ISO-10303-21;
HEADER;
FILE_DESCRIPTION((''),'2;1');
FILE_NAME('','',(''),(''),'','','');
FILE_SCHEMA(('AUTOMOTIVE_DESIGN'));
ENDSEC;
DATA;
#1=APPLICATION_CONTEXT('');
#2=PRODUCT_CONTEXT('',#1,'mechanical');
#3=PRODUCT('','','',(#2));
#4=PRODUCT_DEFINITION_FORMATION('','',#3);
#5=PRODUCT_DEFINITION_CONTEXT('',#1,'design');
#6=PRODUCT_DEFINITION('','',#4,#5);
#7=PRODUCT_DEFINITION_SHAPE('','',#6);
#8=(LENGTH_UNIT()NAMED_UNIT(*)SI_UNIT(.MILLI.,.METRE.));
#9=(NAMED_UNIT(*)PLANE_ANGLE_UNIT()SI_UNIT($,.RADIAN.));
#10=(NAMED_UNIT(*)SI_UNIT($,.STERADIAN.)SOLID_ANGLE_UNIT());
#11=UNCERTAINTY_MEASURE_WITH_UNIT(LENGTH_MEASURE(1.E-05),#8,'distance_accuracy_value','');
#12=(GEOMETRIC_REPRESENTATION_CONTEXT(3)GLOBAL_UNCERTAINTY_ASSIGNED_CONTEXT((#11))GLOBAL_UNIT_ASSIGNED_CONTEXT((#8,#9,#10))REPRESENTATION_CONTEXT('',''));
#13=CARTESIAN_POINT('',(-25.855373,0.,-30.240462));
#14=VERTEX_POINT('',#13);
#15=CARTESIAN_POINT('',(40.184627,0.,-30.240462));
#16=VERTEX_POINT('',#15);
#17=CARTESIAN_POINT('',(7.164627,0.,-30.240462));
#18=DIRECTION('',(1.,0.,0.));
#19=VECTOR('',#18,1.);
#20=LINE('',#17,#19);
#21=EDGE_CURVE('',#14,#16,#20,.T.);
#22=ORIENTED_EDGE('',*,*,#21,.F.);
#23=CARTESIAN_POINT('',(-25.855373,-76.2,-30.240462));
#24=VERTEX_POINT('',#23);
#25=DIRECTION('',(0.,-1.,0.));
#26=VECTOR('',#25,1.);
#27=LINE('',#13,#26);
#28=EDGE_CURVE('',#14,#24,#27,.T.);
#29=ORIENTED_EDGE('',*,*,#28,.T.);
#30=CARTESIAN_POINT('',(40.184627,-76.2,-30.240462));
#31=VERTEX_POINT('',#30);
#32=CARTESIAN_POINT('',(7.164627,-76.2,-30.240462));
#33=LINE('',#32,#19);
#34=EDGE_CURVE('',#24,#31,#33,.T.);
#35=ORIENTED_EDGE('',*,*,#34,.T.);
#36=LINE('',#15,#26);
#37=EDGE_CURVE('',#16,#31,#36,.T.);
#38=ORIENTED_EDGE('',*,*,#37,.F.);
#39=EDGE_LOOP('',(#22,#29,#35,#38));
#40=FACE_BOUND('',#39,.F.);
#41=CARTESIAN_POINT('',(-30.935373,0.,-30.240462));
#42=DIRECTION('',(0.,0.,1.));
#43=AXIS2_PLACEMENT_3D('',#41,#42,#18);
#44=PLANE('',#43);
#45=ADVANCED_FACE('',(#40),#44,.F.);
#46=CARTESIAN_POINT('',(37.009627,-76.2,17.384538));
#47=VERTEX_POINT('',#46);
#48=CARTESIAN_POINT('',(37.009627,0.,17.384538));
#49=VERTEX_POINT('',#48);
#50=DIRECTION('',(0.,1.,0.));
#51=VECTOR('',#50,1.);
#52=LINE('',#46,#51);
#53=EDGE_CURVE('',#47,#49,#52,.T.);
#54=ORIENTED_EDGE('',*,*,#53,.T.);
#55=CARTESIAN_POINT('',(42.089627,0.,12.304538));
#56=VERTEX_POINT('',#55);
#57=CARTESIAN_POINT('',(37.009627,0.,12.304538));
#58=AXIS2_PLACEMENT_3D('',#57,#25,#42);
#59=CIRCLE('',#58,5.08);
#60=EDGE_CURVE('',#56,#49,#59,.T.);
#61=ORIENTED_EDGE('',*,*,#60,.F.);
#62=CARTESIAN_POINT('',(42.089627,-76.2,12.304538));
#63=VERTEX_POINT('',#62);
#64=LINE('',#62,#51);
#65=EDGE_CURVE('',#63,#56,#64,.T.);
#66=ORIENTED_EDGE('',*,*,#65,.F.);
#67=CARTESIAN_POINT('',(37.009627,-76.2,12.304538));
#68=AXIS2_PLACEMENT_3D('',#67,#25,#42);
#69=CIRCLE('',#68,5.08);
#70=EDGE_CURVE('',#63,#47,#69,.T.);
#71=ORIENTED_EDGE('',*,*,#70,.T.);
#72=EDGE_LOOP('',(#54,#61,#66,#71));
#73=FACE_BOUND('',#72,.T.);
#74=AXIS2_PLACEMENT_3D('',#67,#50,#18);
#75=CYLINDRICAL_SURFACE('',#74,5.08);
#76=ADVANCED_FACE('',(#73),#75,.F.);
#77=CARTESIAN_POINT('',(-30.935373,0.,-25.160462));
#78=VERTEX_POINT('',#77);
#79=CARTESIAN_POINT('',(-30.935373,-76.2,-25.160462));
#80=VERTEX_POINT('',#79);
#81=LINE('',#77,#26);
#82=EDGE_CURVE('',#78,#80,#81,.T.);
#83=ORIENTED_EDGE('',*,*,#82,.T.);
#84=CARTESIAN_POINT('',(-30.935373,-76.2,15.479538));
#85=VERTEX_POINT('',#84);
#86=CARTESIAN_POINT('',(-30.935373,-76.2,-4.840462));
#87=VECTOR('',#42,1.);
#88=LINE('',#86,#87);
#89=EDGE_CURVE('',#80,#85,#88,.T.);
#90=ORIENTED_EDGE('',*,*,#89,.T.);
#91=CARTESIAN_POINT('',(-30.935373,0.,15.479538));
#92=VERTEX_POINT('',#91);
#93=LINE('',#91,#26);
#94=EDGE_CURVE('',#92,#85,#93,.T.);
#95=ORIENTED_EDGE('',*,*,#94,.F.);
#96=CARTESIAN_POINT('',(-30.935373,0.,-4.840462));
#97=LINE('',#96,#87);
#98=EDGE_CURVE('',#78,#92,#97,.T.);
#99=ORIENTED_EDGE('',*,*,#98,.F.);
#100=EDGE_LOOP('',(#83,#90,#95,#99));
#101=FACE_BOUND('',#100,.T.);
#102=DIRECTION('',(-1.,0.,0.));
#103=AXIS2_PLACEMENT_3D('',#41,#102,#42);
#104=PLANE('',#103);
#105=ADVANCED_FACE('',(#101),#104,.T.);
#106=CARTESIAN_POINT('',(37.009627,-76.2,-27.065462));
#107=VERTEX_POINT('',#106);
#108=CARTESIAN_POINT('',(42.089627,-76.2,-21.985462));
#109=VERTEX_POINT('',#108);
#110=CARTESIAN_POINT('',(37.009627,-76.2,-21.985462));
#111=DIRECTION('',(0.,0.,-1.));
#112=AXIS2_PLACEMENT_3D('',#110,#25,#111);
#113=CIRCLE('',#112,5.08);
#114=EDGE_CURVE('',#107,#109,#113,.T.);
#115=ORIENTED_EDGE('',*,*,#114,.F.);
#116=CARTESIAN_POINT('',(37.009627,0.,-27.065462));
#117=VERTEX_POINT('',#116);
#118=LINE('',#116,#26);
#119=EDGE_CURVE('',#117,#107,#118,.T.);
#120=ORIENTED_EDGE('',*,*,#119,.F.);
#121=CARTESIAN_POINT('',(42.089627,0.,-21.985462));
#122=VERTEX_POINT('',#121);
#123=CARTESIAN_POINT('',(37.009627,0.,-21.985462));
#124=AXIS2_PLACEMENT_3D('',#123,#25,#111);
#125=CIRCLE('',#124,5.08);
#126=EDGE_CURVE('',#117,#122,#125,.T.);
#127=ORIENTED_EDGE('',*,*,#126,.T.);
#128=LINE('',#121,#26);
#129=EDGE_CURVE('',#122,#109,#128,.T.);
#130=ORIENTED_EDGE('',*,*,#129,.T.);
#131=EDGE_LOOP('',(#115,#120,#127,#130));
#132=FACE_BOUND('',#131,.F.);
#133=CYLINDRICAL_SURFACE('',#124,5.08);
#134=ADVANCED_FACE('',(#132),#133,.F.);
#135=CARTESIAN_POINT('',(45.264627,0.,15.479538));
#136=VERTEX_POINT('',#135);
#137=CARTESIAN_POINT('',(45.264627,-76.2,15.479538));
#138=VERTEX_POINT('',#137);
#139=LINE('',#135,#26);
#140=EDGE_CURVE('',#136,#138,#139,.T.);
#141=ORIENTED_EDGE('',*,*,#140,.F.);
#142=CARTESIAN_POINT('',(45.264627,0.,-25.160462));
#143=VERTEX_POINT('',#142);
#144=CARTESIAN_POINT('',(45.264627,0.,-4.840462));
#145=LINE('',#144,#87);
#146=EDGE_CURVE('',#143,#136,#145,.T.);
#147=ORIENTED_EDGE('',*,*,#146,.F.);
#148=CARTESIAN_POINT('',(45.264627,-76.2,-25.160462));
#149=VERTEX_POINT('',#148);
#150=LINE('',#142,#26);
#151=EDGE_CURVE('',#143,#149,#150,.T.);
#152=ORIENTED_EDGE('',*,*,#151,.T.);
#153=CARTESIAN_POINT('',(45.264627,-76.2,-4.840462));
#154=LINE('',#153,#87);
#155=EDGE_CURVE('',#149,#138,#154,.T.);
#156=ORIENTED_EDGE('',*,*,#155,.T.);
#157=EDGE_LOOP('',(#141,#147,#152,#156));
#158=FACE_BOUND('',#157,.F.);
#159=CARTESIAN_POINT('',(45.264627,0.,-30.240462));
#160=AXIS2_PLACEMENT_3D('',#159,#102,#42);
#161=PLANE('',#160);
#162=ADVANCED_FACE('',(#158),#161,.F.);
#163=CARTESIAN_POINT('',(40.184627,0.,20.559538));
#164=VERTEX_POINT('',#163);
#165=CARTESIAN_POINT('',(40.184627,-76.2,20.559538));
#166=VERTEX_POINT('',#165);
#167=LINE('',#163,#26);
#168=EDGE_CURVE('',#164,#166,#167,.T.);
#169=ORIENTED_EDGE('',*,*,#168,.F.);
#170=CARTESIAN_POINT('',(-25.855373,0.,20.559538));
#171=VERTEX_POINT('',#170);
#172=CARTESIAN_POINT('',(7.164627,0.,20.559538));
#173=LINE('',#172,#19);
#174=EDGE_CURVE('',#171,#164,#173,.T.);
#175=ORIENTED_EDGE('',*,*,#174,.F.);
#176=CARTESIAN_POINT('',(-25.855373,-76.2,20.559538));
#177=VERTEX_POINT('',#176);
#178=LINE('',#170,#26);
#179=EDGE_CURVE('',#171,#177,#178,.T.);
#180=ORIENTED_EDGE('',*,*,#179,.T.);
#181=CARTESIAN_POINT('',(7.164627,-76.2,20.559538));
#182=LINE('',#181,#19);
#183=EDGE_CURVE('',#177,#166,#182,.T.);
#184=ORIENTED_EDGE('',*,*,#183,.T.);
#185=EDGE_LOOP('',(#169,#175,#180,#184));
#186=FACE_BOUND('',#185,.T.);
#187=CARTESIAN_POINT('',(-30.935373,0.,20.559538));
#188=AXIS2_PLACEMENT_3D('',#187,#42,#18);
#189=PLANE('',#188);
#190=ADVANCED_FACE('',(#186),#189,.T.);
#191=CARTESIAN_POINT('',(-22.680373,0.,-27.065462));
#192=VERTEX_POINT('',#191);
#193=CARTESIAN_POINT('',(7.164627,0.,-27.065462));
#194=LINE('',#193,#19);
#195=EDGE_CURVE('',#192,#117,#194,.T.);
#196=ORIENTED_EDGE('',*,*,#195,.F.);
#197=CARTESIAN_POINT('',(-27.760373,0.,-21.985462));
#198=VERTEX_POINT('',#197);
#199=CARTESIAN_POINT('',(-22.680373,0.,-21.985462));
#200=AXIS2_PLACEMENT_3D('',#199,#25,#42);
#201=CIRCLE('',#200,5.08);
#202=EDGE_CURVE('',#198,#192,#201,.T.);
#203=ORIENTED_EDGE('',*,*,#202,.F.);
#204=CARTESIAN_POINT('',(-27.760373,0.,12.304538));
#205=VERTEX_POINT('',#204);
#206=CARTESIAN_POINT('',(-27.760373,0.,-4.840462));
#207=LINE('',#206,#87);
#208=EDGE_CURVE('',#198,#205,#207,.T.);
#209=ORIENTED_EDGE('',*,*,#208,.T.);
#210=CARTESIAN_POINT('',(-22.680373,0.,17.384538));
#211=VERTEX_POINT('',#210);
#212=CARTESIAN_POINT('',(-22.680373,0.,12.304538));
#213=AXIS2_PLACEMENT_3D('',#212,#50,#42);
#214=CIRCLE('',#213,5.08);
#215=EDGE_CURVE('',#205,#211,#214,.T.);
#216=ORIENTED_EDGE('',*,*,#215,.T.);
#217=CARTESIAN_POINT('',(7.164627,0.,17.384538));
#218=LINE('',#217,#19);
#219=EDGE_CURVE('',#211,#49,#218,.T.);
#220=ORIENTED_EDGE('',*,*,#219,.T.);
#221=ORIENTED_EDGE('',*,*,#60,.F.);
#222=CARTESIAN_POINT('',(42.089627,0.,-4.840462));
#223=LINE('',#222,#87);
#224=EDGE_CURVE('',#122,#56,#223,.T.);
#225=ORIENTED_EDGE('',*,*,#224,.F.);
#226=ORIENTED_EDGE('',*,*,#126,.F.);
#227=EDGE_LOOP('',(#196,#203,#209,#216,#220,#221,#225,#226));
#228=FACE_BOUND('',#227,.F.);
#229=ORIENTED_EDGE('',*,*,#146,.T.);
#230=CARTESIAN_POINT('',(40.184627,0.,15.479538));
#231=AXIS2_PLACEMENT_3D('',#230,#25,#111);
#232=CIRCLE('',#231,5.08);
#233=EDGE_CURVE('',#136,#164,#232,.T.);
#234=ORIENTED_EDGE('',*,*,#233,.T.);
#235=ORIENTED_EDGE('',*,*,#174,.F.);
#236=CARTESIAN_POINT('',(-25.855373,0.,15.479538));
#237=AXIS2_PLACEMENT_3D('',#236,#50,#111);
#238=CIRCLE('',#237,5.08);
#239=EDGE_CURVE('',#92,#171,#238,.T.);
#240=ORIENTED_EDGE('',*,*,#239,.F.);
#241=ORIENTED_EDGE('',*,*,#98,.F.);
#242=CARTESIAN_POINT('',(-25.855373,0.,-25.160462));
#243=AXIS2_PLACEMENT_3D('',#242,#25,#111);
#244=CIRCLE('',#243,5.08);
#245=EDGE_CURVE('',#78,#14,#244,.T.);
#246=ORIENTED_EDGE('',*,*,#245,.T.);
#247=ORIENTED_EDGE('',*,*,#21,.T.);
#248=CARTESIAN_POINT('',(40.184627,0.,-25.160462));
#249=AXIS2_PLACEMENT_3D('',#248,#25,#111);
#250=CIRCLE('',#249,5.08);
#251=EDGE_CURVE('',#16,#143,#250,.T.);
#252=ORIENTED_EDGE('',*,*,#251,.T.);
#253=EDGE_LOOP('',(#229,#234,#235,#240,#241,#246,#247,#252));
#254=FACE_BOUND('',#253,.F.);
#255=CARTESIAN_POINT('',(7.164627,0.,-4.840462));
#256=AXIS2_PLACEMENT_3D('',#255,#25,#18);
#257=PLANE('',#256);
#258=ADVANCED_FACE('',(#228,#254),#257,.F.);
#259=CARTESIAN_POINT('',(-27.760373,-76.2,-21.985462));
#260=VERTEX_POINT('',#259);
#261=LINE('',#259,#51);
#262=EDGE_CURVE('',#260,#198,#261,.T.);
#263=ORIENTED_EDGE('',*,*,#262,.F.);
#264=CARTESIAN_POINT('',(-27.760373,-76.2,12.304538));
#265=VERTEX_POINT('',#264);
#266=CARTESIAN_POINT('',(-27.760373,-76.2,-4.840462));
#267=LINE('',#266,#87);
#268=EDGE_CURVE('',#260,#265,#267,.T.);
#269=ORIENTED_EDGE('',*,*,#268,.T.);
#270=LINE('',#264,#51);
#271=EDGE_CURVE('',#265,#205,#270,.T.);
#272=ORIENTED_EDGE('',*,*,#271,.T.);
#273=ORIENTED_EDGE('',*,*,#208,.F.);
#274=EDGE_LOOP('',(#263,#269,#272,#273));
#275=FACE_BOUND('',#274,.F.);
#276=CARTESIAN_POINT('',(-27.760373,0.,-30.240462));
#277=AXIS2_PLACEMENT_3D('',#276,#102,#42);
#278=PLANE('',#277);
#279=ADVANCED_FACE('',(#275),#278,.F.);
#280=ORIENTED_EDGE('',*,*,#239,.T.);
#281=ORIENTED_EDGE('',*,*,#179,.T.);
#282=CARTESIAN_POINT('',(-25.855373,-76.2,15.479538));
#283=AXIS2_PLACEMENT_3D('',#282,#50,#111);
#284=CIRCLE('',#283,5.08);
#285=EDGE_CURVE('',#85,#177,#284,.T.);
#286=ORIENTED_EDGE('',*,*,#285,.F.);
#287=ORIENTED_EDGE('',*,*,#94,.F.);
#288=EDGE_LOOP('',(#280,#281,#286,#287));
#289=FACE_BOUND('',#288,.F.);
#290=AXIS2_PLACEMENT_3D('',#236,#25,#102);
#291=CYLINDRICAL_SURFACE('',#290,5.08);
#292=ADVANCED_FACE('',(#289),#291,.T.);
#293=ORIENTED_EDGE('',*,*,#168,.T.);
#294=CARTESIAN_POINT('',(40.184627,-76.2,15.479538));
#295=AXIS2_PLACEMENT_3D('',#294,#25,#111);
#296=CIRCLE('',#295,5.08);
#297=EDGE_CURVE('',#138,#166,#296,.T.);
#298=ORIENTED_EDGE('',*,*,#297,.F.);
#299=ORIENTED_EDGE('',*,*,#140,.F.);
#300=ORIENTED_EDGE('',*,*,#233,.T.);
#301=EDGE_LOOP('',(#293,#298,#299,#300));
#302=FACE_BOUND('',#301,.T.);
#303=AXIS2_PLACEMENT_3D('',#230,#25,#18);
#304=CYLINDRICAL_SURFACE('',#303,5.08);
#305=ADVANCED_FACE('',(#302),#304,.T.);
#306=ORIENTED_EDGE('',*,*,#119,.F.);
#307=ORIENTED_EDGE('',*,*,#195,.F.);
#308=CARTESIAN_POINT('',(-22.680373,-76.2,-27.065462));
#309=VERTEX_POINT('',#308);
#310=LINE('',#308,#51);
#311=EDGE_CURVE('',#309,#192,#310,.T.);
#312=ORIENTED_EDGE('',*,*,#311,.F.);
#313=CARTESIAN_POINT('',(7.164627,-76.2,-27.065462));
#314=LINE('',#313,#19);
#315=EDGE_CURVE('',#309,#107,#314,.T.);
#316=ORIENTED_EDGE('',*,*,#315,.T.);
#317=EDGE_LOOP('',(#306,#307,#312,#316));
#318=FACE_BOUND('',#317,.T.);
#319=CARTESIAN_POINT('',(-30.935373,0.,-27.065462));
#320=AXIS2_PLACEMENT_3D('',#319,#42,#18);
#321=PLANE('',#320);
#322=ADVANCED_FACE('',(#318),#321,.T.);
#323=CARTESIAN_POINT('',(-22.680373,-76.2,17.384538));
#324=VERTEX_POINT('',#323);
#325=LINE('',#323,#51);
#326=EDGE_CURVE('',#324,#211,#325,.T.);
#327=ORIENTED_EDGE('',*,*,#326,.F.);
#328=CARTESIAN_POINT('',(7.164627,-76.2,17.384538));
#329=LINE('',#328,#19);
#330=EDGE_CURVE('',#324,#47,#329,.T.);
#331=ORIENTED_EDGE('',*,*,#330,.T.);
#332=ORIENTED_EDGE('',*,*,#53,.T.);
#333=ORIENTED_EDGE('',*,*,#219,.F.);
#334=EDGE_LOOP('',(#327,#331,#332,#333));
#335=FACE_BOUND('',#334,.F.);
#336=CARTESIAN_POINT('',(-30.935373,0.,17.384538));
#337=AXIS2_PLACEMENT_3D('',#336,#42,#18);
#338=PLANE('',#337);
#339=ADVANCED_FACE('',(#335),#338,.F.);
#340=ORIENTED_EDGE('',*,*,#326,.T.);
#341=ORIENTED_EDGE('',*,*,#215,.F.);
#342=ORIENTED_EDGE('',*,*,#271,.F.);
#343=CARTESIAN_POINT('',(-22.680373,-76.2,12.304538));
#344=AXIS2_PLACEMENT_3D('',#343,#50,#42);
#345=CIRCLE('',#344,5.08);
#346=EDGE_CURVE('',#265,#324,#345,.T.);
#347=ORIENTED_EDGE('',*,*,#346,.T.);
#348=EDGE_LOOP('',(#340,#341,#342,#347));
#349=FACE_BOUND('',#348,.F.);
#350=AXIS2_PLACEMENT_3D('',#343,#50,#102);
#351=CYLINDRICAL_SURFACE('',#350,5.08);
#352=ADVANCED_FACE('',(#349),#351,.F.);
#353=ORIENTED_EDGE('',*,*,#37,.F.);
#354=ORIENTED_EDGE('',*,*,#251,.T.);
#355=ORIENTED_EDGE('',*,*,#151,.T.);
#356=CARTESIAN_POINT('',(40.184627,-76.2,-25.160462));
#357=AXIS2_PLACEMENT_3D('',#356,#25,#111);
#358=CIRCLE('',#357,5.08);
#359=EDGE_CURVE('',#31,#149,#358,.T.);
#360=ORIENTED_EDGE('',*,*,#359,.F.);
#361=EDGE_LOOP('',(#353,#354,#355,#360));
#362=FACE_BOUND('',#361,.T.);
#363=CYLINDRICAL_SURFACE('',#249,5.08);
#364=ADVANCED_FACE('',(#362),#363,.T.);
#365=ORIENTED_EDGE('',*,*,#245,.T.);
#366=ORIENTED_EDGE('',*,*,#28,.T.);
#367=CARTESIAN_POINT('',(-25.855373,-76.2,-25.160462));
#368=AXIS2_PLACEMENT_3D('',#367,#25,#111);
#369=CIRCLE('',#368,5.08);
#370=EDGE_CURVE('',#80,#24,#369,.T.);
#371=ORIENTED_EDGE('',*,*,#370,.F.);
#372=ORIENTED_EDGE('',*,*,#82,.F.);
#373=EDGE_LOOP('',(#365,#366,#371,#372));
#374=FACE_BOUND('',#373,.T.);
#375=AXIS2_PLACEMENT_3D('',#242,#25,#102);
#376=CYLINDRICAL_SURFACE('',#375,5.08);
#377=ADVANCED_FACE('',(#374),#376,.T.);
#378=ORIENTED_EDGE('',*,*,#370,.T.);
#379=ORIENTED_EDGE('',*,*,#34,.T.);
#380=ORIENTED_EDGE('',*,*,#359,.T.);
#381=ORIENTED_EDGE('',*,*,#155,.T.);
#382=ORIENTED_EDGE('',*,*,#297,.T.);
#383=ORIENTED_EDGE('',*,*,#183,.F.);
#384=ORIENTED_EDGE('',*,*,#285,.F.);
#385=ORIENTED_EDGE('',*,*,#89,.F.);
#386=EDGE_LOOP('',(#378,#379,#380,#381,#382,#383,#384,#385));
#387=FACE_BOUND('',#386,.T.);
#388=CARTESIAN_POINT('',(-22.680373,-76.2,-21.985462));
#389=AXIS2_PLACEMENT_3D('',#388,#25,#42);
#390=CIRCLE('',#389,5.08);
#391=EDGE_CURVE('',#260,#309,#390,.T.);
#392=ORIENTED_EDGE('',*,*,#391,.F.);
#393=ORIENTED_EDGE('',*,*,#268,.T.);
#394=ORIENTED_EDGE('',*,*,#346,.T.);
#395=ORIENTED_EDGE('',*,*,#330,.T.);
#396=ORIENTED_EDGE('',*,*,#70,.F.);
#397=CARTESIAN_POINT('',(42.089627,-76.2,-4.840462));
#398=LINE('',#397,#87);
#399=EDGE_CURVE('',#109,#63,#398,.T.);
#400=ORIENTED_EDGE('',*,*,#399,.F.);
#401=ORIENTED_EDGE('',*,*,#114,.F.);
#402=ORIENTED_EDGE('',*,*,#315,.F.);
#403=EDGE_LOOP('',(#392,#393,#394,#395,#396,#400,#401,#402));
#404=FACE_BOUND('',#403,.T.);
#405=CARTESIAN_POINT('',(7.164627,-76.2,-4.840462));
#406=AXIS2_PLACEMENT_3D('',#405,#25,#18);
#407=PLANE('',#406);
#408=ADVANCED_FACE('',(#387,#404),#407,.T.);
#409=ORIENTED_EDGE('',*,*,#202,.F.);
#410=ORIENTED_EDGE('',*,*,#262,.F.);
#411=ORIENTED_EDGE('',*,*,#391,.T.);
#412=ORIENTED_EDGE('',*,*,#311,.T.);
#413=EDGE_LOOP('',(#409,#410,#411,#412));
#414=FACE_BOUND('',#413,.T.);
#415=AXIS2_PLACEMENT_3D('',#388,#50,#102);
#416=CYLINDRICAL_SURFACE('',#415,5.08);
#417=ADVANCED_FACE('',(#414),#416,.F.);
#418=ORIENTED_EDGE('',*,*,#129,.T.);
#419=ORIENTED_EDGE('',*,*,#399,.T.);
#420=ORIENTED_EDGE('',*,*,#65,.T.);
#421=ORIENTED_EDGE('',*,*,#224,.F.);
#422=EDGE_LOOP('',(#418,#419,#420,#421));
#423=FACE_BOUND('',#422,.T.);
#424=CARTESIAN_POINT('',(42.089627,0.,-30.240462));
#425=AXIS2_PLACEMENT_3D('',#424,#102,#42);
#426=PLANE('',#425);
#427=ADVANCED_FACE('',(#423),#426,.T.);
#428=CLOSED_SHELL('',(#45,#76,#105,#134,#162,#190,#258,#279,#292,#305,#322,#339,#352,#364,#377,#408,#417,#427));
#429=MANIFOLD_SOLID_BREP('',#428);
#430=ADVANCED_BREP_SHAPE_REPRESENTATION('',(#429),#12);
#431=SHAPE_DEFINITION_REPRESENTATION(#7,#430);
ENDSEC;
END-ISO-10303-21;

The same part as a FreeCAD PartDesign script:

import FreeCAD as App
import Part
import Sketcher

V = App.Vector
Q = App.Units.Quantity


def edges_at(feature, points):
    """Names of the edges that pass closest to the given points."""
    edges = feature.Shape.Edges
    near = lambda p: min(range(len(edges)), key=lambda i: edges[i].distToShape(Part.Vertex(*p))[0])
    return sorted({f"Edge{near(p) + 1}" for p in points})


def faces_at(feature, points):
    """Names of the faces that lie closest to the given points."""
    faces = feature.Shape.Faces
    near = lambda p: min(range(len(faces)), key=lambda i: faces[i].distToShape(Part.Vertex(*p))[0])
    return sorted({f"Face{near(p) + 1}" for p in points})

doc = App.newDocument("Part")
body = doc.addObject("PartDesign::Body", "Body")

# Sketch on XZ plane
sketch1 = body.newObject("Sketcher::SketchObject", "Sketch")
sketch1.AttachmentSupport = (doc.getObject("XZ_Plane"), [""])
sketch1.MapMode = "FlatFace"
sketch1.addGeometry([
    Part.LineSegment(V(-30.935373, 20.559538, 0), V(-30.935373, -30.240462, 0)),
    Part.LineSegment(V(-30.935373, -30.240462, 0), V(45.264627, -30.240462, 0)),
    Part.LineSegment(V(45.264627, -30.240462, 0), V(45.264627, 20.559538, 0)),
    Part.LineSegment(V(45.264627, 20.559538, 0), V(-30.935373, 20.559538, 0)),
], False)
sketch1.addConstraint([
    Sketcher.Constraint("Coincident", 0, 2, 1, 1),
    Sketcher.Constraint("Coincident", 1, 2, 2, 1),
    Sketcher.Constraint("Coincident", 2, 2, 3, 1),
    Sketcher.Constraint("Coincident", 3, 2, 0, 1),
    Sketcher.Constraint("Vertical", 0),
    Sketcher.Constraint("Horizontal", 1),
    Sketcher.Constraint("Vertical", 2),
    Sketcher.Constraint("Horizontal", 3),
    Sketcher.Constraint("DistanceX", 1, 1, 1, 2, Q("3 in")),
    Sketcher.Constraint("DistanceY", 0, 2, 0, 1, Q("2 in")),
    Sketcher.Constraint("DistanceY", 0, 2, -1, 1, 30.240462),
    Sketcher.Constraint("DistanceX", 0, 2, -1, 1, 30.935373),
])
pad1 = body.newObject("PartDesign::Pad", "Pad")
pad1.Profile = sketch1
pad1.Length = Q("3 in")
doc.recompute()

thickness = body.newObject("PartDesign::Thickness", "Thickness")
thickness.Base = (pad1, faces_at(pad1, [(7.165, -76.2, -4.84), (7.165, 0, -4.84)]))
thickness.Value = Q("0.125 in")
thickness.Reversed = True
thickness.Join = "Arc"
doc.recompute()

fillet = body.newObject("PartDesign::Fillet", "Fillet")
fillet.Base = (thickness, edges_at(thickness, [
    (45.265, -38.1, 20.56),
    (-30.935, -38.1, 20.56),
    (45.265, -38.1, -30.24),
    (-30.935, -38.1, -30.24),
    (42.09, -38.1, -27.065),
    (-27.76, -38.1, -27.065),
    (-27.76, -38.1, 17.385),
    (42.09, -38.1, 17.385),
]))
fillet.Radius = Q("0.2 in")

doc.recompute()
